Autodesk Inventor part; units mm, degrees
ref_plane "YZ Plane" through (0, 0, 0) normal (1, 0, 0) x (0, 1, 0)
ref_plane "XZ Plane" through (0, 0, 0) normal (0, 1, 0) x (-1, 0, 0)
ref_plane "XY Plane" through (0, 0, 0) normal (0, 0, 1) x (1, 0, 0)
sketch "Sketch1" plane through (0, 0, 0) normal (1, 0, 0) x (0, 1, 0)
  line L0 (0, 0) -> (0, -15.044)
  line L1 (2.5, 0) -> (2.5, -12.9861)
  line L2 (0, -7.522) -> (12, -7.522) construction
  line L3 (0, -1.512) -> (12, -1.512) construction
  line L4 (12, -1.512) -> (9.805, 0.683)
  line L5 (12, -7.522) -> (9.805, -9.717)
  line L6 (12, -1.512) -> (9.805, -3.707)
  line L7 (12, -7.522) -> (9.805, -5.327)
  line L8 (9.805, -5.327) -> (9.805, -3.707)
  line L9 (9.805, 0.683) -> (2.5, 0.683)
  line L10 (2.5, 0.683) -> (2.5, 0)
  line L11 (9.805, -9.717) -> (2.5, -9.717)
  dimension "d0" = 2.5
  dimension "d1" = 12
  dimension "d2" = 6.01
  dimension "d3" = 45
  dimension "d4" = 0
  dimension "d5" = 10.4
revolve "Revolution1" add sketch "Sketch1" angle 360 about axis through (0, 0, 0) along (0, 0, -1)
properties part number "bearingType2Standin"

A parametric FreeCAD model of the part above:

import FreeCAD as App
import Part
import Sketcher

V = App.Vector
Q = App.Units.Quantity

doc = App.newDocument("Part")
body = doc.addObject("PartDesign::Body", "Body")

# Sketch on YZ plane
sketch1 = doc.addObject("Sketcher::SketchObject", "Sketch")
body.addObject(sketch1)
sketch1.AttachmentSupport = (doc.YZ_Plane, [""])
sketch1.MapMode = "FlatFace"
sketch1.addGeometry([
    Part.LineSegment(V(2.5, 0.7, 0), V(2.5, -9.7, 0)),  # 0
    Part.LineSegment(V(2.5, -9.7, 0), V(9.8, -9.7, 0)),  # 1
    Part.LineSegment(V(9.8, -9.7, 0), V(12, -7.5, 0)),  # 2
    Part.LineSegment(V(12, -7.5, 0), V(9.8, -5.3, 0)),  # 3
    Part.LineSegment(V(9.8, -5.3, 0), V(9.8, -3.7, 0)),  # 4
    Part.LineSegment(V(9.8, -3.7, 0), V(12, -1.5, 0)),  # 5
    Part.LineSegment(V(12, -1.5, 0), V(9.8, 0.7, 0)),  # 6
    Part.LineSegment(V(9.8, 0.7, 0), V(2.5, 0.7, 0)),  # 7
], False)
sketch1.addConstraint([
    Sketcher.Constraint("Coincident", 0, 2, 1, 1),
    Sketcher.Constraint("Coincident", 1, 2, 2, 1),
    Sketcher.Constraint("Coincident", 2, 2, 3, 1),
    Sketcher.Constraint("Coincident", 3, 2, 4, 1),
    Sketcher.Constraint("Coincident", 4, 2, 5, 1),
    Sketcher.Constraint("Coincident", 5, 2, 6, 1),
    Sketcher.Constraint("Coincident", 6, 2, 7, 1),
    Sketcher.Constraint("Coincident", 7, 2, 0, 1),
    Sketcher.Constraint("Vertical", 0),
    Sketcher.Constraint("Horizontal", 1),
    Sketcher.Constraint("Vertical", 4),
    Sketcher.Constraint("Horizontal", 7),
    Sketcher.Constraint("Perpendicular", 2, 3),
    Sketcher.Constraint("Perpendicular", 3, 5),
    Sketcher.Constraint("Perpendicular", 5, 6),
    Sketcher.Constraint("Vertical", 1, 2, 3, 2),
    Sketcher.Constraint("Vertical", 2, 2, 5, 2),
    Sketcher.Constraint("Vertical", 4, 2, 6, 2),
    Sketcher.Constraint("Equal", 2, 3),
    Sketcher.Constraint("DistanceY", 0, 2, 0, 1, Q("10.4 mm")),
    Sketcher.Constraint("DistanceX", -1, 1, 2, 2, Q("12 mm")),
    Sketcher.Constraint("DistanceX", -1, 1, 0, 2, Q("2.5 mm")),
    Sketcher.Constraint("DistanceY", 1, 2, 4, 2, Q("6.01 mm")),
    Sketcher.Constraint("DistanceY", 0, 2, -1, 1, Q("9.717 mm")),
])
revolution = doc.addObject("PartDesign::Revolution", "Revolution")
body.addObject(revolution)
revolution.Profile = sketch1
revolution.ReferenceAxis = (sketch1, ["V_Axis"])
revolution.Angle = 360

doc.recompute()
